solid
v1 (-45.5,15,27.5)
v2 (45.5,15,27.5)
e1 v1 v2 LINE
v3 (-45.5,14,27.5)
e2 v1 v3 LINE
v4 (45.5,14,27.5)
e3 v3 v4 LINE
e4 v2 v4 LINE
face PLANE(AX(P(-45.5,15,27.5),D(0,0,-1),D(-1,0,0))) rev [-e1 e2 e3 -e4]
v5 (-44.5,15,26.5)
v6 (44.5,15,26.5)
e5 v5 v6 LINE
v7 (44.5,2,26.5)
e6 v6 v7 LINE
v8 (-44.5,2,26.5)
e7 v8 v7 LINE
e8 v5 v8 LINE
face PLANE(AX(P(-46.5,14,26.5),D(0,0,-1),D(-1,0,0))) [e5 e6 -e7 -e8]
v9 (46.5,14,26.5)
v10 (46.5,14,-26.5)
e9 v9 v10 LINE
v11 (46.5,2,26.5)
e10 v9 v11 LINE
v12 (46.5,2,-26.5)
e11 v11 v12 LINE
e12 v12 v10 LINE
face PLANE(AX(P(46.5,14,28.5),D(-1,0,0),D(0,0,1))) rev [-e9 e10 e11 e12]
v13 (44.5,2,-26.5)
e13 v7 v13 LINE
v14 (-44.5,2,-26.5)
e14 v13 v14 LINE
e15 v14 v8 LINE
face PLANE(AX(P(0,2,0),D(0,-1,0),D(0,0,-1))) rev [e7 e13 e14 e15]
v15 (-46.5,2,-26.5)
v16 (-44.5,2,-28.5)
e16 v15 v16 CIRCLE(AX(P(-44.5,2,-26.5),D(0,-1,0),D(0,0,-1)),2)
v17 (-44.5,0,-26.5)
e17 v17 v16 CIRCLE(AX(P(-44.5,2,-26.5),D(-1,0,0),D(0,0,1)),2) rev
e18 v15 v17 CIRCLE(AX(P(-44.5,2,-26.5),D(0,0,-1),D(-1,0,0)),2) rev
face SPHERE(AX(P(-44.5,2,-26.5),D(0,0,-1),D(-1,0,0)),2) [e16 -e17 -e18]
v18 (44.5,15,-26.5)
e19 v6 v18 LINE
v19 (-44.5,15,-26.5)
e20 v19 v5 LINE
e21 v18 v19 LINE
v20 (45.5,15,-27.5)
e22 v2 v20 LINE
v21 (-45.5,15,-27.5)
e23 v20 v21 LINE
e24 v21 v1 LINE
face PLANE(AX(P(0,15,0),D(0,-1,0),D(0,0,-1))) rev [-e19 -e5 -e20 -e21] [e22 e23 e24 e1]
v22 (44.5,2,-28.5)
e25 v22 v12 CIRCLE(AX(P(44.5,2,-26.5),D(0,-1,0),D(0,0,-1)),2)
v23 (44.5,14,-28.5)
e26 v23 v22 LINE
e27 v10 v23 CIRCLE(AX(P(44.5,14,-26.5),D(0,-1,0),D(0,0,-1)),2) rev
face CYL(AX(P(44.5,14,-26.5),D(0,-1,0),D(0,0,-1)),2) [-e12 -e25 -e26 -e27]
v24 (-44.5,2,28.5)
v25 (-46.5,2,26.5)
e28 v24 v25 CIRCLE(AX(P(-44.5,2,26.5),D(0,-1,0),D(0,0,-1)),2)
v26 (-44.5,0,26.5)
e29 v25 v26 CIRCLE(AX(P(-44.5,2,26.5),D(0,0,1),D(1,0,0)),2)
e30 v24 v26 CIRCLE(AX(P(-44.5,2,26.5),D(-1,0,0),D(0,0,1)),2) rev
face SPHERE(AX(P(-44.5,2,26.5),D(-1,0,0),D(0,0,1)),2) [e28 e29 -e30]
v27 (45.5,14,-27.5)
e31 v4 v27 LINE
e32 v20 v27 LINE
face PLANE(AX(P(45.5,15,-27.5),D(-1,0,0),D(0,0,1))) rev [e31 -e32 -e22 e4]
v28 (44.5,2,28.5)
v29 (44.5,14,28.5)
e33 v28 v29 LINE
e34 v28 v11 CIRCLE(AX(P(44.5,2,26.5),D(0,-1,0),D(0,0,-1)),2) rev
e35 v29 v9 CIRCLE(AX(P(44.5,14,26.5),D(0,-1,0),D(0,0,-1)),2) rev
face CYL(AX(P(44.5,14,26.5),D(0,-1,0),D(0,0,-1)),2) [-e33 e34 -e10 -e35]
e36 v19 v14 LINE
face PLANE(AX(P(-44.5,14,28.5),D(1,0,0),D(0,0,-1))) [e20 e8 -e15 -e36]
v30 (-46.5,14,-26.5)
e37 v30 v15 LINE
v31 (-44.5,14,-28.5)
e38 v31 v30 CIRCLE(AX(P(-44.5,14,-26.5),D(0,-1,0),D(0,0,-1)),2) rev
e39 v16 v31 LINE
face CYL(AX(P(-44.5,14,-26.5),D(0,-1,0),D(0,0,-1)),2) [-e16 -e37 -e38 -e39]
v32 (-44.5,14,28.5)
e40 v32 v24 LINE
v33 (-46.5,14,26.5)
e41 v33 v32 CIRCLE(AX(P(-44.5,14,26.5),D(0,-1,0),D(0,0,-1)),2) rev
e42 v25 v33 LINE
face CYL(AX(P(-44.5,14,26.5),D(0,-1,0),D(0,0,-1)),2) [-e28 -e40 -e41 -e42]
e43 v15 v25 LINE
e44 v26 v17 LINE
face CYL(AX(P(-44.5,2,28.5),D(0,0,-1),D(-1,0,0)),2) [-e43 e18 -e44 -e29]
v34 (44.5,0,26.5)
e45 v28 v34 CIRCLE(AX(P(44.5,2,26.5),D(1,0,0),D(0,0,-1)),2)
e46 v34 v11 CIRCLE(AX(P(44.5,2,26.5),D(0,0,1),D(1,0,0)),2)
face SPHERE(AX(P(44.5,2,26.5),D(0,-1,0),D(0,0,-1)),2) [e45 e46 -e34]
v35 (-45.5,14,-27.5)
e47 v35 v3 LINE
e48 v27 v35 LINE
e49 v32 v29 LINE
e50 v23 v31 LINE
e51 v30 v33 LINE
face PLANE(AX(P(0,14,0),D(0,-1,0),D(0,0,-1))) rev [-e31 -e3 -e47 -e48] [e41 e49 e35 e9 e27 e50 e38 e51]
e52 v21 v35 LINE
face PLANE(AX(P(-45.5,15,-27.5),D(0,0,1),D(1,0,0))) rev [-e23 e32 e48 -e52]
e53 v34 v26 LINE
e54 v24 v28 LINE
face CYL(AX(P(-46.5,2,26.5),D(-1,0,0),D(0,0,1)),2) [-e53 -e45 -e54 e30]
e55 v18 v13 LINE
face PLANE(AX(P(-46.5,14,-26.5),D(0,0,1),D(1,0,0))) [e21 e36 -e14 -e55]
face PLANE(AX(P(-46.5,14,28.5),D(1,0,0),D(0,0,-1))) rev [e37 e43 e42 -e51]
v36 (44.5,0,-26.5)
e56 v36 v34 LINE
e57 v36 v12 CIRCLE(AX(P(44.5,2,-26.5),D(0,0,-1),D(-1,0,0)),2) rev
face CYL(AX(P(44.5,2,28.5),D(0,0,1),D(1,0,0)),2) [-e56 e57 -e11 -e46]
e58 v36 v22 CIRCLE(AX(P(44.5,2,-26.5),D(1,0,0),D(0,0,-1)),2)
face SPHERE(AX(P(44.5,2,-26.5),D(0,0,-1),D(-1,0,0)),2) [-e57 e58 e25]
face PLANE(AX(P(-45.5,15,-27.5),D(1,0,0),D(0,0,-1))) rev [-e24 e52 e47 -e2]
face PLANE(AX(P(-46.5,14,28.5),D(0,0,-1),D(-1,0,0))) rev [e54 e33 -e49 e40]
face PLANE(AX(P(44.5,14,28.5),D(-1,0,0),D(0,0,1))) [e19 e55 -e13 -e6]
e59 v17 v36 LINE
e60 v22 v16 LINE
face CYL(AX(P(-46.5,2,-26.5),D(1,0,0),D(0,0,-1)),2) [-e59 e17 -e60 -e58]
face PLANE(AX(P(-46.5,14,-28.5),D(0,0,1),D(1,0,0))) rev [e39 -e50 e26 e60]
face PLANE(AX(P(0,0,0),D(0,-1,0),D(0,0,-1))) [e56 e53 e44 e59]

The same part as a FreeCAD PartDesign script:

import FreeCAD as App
import Part
import Sketcher
from FreeCAD import Vector


def edges_at(feature, points):
    """Names of the edges that pass closest to the given points."""
    edges = feature.Shape.Edges
    near = lambda p: min(range(len(edges)), key=lambda i: edges[i].distToShape(Part.Vertex(*p))[0])
    return sorted({f"Edge{near(p) + 1}" for p in points})


def faces_at(feature, points):
    """Names of the faces that lie closest to the given points."""
    faces = feature.Shape.Faces
    near = lambda p: min(range(len(faces)), key=lambda i: faces[i].distToShape(Part.Vertex(*p))[0])
    return sorted({f"Face{near(p) + 1}" for p in points})


def add_polygon(sketch, points):
    """Adds a closed chain of lines whose ends are joined by coincident constraints."""
    first, n = sketch.GeometryCount, len(points)
    for a, b in zip(points, points[1:] + points[:1]):
        sketch.addGeometry(Part.LineSegment(App.Vector(*a, 0), App.Vector(*b, 0)), False)
    for i in range(n):
        sketch.addConstraint(Sketcher.Constraint("Coincident", first + i, 2, first + (i + 1) % n, 1))

doc = App.newDocument("Part")
body = doc.addObject("PartDesign::Body", "Body")

# Sketch on XZ plane
sketch1 = body.newObject("Sketcher::SketchObject", "Sketch")
sketch1.AttachmentSupport = (doc.getObject("XZ_Plane"), [""])
sketch1.MapMode = "FlatFace"
add_polygon(sketch1, [(-46, -28), (-46, 28), (46, 28), (46, -28)])  # lines 0-3
sketch1.addConstraint(Sketcher.Constraint("Vertical", 0))
sketch1.addConstraint(Sketcher.Constraint("Horizontal", 1))
sketch1.addConstraint(Sketcher.Constraint("Vertical", 2))
sketch1.addConstraint(Sketcher.Constraint("Horizontal", 3))
sketch1.addConstraint(Sketcher.Constraint("Symmetric", 0, 2, 2, 2, -1, 1))
sketch1.addConstraint(Sketcher.Constraint("DistanceX", 1, 1, 1, 2, 93.0))
sketch1.addConstraint(Sketcher.Constraint("DistanceY", 0, 1, 0, 2, 57.0))
pad1 = body.newObject("PartDesign::Pad", "Pad")
pad1.Profile = sketch1
pad1.Length = 14
pad1.Reversed = True
doc.recompute()

thickness = body.newObject("PartDesign::Thickness", "Thickness")
thickness.Base = (pad1, faces_at(pad1, [(0, 14, 0)]))
thickness.Value = 2
thickness.Reversed = True
thickness.Join = "Intersection"

# Sketch on XZ plane
sketch2 = body.newObject("Sketcher::SketchObject", "Sketch001")
sketch2.AttachmentSupport = (doc.getObject("XZ_Plane"), [""])
sketch2.MapMode = "FlatFace"
sketch2.AttachmentOffset = App.Placement(Vector(0, 0, -14), App.Rotation())
add_polygon(sketch2, [(-46, -28), (-46, 28), (46, 28), (46, -28)])  # lines 0-3
add_polygon(sketch2, [(44, 26), (-44, 26), (-44, -26), (44, -26)])  # lines 4-7
sketch2.addConstraint(Sketcher.Constraint("Vertical", 0))
sketch2.addConstraint(Sketcher.Constraint("Horizontal", 1))
sketch2.addConstraint(Sketcher.Constraint("Vertical", 2))
sketch2.addConstraint(Sketcher.Constraint("Horizontal", 3))
sketch2.addConstraint(Sketcher.Constraint("Horizontal", 4))
sketch2.addConstraint(Sketcher.Constraint("Vertical", 5))
sketch2.addConstraint(Sketcher.Constraint("Horizontal", 6))
sketch2.addConstraint(Sketcher.Constraint("Vertical", 7))
sketch2.addConstraint(Sketcher.Constraint("Symmetric", 0, 2, 2, 2, -1, 1))
sketch2.addConstraint(Sketcher.Constraint("Symmetric", 4, 2, 6, 2, -1, 1))
sketch2.addConstraint(Sketcher.Constraint("DistanceX", 1, 1, 1, 2, 91.0))
sketch2.addConstraint(Sketcher.Constraint("DistanceX", 4, 2, 4, 1, 89.0))
sketch2.addConstraint(Sketcher.Constraint("DistanceY", 0, 1, 0, 2, 55.0))
sketch2.addConstraint(Sketcher.Constraint("DistanceY", 5, 2, 5, 1, 53.0))
pad2 = body.newObject("PartDesign::Pad", "Pad001")
pad2.Profile = sketch2
pad2.Length = 1
pad2.Reversed = True
doc.recompute()

fillet = body.newObject("PartDesign::Fillet", "Fillet")
fillet.Base = (pad2, edges_at(pad2, [
    (0, 0, 28.5),
    (-46.5, 0, 0),
    (0, 0, -28.5),
    (46.5, 0, 0),
    (46.5, 7, 28.5),
    (-46.5, 7, 28.5),
    (-46.5, 7, -28.5),
    (46.5, 7, -28.5),
]))
fillet.Radius = 2

doc.recompute()
